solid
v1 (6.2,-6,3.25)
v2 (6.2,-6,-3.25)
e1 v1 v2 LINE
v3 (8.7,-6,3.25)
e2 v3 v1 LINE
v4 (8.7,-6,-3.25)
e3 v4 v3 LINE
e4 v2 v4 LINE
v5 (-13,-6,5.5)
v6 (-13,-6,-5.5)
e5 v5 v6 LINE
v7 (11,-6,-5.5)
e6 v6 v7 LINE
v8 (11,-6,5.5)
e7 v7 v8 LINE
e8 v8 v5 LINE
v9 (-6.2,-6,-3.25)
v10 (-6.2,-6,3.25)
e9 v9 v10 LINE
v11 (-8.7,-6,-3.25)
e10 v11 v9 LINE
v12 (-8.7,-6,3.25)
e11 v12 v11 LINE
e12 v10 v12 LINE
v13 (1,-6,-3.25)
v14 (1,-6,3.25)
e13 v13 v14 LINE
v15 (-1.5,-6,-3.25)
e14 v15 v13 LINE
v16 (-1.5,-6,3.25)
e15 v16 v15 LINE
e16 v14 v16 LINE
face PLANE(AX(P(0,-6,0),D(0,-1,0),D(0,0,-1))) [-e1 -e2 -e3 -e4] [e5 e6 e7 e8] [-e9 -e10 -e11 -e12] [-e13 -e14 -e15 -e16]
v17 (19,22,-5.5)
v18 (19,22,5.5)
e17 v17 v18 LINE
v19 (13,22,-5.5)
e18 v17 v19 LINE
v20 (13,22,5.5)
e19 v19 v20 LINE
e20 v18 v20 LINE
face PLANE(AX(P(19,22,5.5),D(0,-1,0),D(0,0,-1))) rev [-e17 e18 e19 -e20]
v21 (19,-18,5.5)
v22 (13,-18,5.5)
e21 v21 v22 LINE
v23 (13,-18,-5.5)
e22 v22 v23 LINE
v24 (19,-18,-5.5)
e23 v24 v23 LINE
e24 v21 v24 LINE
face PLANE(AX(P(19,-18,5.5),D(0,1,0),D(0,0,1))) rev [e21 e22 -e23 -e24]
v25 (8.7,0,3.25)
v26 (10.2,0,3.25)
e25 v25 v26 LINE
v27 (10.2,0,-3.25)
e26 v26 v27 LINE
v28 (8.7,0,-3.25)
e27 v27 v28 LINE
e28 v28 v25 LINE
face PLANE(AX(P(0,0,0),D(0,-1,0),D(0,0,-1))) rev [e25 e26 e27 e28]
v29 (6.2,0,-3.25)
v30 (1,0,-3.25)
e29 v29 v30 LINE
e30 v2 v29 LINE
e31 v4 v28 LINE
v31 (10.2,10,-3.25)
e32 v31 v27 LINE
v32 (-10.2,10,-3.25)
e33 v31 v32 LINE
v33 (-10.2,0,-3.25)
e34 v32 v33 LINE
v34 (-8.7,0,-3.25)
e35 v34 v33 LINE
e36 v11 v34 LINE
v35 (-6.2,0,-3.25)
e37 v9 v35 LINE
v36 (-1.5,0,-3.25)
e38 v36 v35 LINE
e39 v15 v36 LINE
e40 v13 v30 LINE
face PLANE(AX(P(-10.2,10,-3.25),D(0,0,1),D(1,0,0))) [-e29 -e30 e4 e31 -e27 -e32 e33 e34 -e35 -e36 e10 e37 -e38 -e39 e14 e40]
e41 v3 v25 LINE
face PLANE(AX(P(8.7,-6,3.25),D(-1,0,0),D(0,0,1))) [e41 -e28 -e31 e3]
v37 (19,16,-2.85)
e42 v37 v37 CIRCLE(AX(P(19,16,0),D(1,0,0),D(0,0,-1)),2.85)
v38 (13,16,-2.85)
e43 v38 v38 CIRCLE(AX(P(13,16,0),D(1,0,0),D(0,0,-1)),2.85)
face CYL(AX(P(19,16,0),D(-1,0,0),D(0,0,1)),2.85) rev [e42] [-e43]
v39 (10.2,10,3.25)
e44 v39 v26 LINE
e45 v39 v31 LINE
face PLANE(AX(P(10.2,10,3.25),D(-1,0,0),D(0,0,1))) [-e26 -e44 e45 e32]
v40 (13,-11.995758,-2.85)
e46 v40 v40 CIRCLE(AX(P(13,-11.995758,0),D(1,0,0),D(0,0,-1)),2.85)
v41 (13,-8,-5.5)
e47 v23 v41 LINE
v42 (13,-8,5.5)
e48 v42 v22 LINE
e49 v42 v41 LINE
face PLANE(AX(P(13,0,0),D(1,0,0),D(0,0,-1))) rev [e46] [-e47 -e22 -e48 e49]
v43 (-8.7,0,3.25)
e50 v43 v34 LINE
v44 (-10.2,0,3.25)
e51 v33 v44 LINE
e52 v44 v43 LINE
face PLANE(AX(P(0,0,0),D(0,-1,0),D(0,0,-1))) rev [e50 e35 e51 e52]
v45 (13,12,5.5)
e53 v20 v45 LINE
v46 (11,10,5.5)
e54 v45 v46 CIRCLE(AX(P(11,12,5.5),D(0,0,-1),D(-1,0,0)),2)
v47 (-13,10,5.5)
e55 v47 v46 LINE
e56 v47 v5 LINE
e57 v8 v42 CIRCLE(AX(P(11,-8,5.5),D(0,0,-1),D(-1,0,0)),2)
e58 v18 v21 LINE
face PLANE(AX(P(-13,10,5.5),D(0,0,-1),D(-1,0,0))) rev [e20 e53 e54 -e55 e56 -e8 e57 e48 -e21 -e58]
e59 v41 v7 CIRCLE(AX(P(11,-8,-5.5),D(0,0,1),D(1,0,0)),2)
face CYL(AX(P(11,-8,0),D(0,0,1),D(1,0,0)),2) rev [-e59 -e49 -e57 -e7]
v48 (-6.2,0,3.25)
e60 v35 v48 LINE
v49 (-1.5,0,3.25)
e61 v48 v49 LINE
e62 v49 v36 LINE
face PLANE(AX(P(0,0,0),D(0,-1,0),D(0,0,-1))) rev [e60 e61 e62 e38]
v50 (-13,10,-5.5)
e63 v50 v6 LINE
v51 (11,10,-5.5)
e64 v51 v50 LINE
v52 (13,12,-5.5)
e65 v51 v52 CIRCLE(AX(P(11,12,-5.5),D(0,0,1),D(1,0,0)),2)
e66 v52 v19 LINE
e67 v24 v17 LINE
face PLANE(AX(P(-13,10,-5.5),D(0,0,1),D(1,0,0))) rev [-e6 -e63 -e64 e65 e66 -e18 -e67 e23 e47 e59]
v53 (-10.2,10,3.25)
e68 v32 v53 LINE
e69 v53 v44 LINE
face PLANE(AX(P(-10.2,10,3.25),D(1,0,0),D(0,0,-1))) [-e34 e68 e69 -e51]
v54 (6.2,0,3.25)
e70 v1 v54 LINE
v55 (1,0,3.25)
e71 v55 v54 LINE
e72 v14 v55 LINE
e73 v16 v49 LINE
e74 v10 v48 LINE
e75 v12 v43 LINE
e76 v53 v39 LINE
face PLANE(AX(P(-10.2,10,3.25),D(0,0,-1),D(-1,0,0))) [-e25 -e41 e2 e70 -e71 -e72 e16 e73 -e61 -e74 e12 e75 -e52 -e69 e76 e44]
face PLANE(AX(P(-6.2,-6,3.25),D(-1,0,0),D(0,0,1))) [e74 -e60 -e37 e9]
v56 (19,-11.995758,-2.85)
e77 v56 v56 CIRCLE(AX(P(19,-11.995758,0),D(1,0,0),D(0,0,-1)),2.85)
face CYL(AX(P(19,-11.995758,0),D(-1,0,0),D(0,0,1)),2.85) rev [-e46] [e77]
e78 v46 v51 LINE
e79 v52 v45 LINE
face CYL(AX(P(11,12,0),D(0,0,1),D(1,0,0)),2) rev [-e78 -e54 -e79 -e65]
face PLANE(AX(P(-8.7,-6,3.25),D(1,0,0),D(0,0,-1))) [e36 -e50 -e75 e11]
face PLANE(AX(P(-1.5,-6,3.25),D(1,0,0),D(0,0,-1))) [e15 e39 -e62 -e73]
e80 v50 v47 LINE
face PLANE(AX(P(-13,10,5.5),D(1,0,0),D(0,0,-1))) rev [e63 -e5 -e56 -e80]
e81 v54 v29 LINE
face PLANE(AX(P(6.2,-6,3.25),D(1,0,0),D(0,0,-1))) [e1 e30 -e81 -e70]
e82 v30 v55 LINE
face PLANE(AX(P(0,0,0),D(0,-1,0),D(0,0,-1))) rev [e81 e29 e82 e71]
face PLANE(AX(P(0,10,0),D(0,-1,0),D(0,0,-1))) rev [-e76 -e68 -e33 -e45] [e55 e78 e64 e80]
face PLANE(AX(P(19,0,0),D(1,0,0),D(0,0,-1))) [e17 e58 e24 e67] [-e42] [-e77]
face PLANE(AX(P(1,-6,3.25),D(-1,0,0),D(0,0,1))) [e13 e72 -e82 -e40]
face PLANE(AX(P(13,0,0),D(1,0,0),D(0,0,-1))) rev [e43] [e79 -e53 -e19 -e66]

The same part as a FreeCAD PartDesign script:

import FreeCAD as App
import Part
import Sketcher
Q = App.Units.Quantity


def edges_at(feature, points):
    """Names of the edges that pass closest to the given points."""
    edges = feature.Shape.Edges
    near = lambda p: min(range(len(edges)), key=lambda i: edges[i].distToShape(Part.Vertex(*p))[0])
    return sorted({f"Edge{near(p) + 1}" for p in points})


def add_polygon(sketch, points):
    """Adds a closed chain of lines whose ends are joined by coincident constraints."""
    first, n = sketch.GeometryCount, len(points)
    for a, b in zip(points, points[1:] + points[:1]):
        sketch.addGeometry(Part.LineSegment(App.Vector(*a, 0), App.Vector(*b, 0)), False)
    for i in range(n):
        sketch.addConstraint(Sketcher.Constraint("Coincident", first + i, 2, first + (i + 1) % n, 1))

doc = App.newDocument("Part")
body = doc.addObject("PartDesign::Body", "Body")

# Sketch on XZ plane
sketch1 = doc.addObject("Sketcher::SketchObject", "Sketch")
body.addObject(sketch1)
sketch1.AttachmentSupport = (doc.XZ_Plane, [""])
sketch1.MapMode = "FlatFace"
add_polygon(sketch1, [(-13, -6), (-13, 6), (13, 6), (13, -6)])  # lines 0-3
add_polygon(sketch1, [(10, 3), (-10, 3), (-10, -3), (10, -3)])  # lines 4-7
sketch1.addConstraint([
    Sketcher.Constraint("Vertical", 0),
    Sketcher.Constraint("Horizontal", 1),
    Sketcher.Constraint("Vertical", 2),
    Sketcher.Constraint("Horizontal", 3),
    Sketcher.Constraint("Horizontal", 4),
    Sketcher.Constraint("Vertical", 5),
    Sketcher.Constraint("Horizontal", 6),
    Sketcher.Constraint("Vertical", 7),
    Sketcher.Constraint("Symmetric", 0, 2, 2, 2, -1, 1),
    Sketcher.Constraint("Symmetric", 4, 2, 6, 2, -1, 1),
    Sketcher.Constraint("DistanceX", 1, 1, 1, 2, Q("26 mm")),
    Sketcher.Constraint("DistanceY", 0, 1, 0, 2, Q("11 mm")),
    Sketcher.Constraint("DistanceX", 4, 2, 4, 1, Q("20.4 mm")),
    Sketcher.Constraint("DistanceY", 5, 2, 5, 1, Q("6.5 mm")),
])
pad1 = doc.addObject("PartDesign::Pad", "Pad")
body.addObject(pad1)
pad1.Profile = sketch1
pad1.Length = 10
pad1.Reversed = True

# Sketch on XZ plane
sketch2 = doc.addObject("Sketcher::SketchObject", "Sketch001")
body.addObject(sketch2)
sketch2.AttachmentSupport = (doc.XZ_Plane, [""])
sketch2.MapMode = "FlatFace"
add_polygon(sketch2, [(-13, 5.5), (-13, -5.5), (13, -5.5), (13, 5.5)])  # lines 0-3
add_polygon(sketch2, [(-6.2, -3.2), (-8.7, -3.2), (-8.7, 3.2), (-6.2, 3.2)])  # lines 4-7
add_polygon(sketch2, [(1, -3.2), (-1.5, -3.2), (-1.5, 3.2), (1, 3.2)])  # lines 8-11
add_polygon(sketch2, [(8.7, -3.2), (6.2, -3.2), (6.2, 3.2), (8.7, 3.2)])  # lines 12-15
sketch2.addConstraint([
    Sketcher.Constraint("Vertical", 0),
    Sketcher.Constraint("Horizontal", 1),
    Sketcher.Constraint("Vertical", 2),
    Sketcher.Constraint("Horizontal", 3),
    Sketcher.Constraint("Horizontal", 4),
    Sketcher.Constraint("Vertical", 5),
    Sketcher.Constraint("Horizontal", 6),
    Sketcher.Constraint("Vertical", 7),
    Sketcher.Constraint("Horizontal", 8),
    Sketcher.Constraint("Vertical", 9),
    Sketcher.Constraint("Horizontal", 10),
    Sketcher.Constraint("Vertical", 11),
    Sketcher.Constraint("Horizontal", 12),
    Sketcher.Constraint("Vertical", 13),
    Sketcher.Constraint("Horizontal", 14),
    Sketcher.Constraint("Vertical", 15),
    Sketcher.Constraint("Symmetric", 0, 2, 2, 2, -1, 1),
    Sketcher.Constraint("Symmetric", 6, 2, 12, 2, -1, 1),
    Sketcher.Constraint("Symmetric", 4, 2, 14, 2, -1, 1),
    Sketcher.Constraint("Horizontal", 7, 2, 8, 2),
    Sketcher.Constraint("Horizontal", 6, 2, 9, 2),
    Sketcher.Constraint("Horizontal", 11, 2, 12, 2),
    Sketcher.Constraint("Equal", 6, 8),
    Sketcher.Constraint("DistanceX", 1, 1, 1, 2, Q("26 mm")),
    Sketcher.Constraint("DistanceY", 0, 2, 0, 1, Q("11 mm")),
    Sketcher.Constraint("DistanceX", 4, 2, 4, 1, Q("2.5 mm")),
    Sketcher.Constraint("DistanceY", 5, 1, 5, 2, Q("6.5 mm")),
    Sketcher.Constraint("DistanceX", -1, 1, 10, 2, Q("1 mm")),
    Sketcher.Constraint("DistanceX", 4, 2, -1, 1, Q("8.7 mm")),
])
pad2 = doc.addObject("PartDesign::Pad", "Pad001")
body.addObject(pad2)
pad2.Profile = sketch2
pad2.Length = 6

# Sketch on YZ plane
sketch3 = doc.addObject("Sketcher::SketchObject", "Sketch002")
body.addObject(sketch3)
sketch3.AttachmentSupport = (doc.YZ_Plane, [""])
sketch3.MapMode = "FlatFace"
sketch3.AttachmentOffset = App.Placement(App.Vector(0, 0, 13), App.Rotation())
add_polygon(sketch3, [(22, 5.5), (-18, 5.5), (-18, -5.5), (22, -5.5)])  # lines 0-3
sketch3.addGeometry(Part.Circle(App.Vector(-12, 0, 0), App.Vector(0, 0, 1), 2.9), False)  # 4
sketch3.addGeometry(Part.Circle(App.Vector(16, 0, 0), App.Vector(0, 0, 1), 2.9), False)  # 5
sketch3.addConstraint([
    Sketcher.Constraint("Horizontal", 0),
    Sketcher.Constraint("Vertical", 1),
    Sketcher.Constraint("Horizontal", 2),
    Sketcher.Constraint("Vertical", 3),
    Sketcher.Constraint("Equal", 4, 5),
    Sketcher.Constraint("PointOnObject", 4, 3, -1),
    Sketcher.Constraint("PointOnObject", 5, 3, -1),
    Sketcher.Constraint("Diameter", 4, Q("5.7 mm")),
    Sketcher.Constraint("DistanceX", 0, 2, 0, 1, Q("40 mm")),
    Sketcher.Constraint("DistanceY", 1, 2, 1, 1, Q("11 mm")),
    Sketcher.Constraint("DistanceX", -1, 1, 5, 3, Q("16 mm")),
    Sketcher.Constraint("DistanceX", 0, 2, -1, 1, Q("18 mm")),
    Sketcher.Constraint("DistanceY", -1, 1, 0, 2, Q("5.5 mm")),
    Sketcher.Constraint("DistanceX", 4, 3, -1, 1, Q("11.995758 mm")),
])
pad3 = doc.addObject("PartDesign::Pad", "Pad002")
body.addObject(pad3)
pad3.Profile = sketch3
pad3.Length = 6
doc.recompute()

fillet = doc.addObject("PartDesign::Fillet", "Fillet")
body.addObject(fillet)
fillet.Base = (pad3, edges_at(pad3, [(13, -6, 0), (13, 10, 0)]))
fillet.Radius = 2

doc.recompute()
